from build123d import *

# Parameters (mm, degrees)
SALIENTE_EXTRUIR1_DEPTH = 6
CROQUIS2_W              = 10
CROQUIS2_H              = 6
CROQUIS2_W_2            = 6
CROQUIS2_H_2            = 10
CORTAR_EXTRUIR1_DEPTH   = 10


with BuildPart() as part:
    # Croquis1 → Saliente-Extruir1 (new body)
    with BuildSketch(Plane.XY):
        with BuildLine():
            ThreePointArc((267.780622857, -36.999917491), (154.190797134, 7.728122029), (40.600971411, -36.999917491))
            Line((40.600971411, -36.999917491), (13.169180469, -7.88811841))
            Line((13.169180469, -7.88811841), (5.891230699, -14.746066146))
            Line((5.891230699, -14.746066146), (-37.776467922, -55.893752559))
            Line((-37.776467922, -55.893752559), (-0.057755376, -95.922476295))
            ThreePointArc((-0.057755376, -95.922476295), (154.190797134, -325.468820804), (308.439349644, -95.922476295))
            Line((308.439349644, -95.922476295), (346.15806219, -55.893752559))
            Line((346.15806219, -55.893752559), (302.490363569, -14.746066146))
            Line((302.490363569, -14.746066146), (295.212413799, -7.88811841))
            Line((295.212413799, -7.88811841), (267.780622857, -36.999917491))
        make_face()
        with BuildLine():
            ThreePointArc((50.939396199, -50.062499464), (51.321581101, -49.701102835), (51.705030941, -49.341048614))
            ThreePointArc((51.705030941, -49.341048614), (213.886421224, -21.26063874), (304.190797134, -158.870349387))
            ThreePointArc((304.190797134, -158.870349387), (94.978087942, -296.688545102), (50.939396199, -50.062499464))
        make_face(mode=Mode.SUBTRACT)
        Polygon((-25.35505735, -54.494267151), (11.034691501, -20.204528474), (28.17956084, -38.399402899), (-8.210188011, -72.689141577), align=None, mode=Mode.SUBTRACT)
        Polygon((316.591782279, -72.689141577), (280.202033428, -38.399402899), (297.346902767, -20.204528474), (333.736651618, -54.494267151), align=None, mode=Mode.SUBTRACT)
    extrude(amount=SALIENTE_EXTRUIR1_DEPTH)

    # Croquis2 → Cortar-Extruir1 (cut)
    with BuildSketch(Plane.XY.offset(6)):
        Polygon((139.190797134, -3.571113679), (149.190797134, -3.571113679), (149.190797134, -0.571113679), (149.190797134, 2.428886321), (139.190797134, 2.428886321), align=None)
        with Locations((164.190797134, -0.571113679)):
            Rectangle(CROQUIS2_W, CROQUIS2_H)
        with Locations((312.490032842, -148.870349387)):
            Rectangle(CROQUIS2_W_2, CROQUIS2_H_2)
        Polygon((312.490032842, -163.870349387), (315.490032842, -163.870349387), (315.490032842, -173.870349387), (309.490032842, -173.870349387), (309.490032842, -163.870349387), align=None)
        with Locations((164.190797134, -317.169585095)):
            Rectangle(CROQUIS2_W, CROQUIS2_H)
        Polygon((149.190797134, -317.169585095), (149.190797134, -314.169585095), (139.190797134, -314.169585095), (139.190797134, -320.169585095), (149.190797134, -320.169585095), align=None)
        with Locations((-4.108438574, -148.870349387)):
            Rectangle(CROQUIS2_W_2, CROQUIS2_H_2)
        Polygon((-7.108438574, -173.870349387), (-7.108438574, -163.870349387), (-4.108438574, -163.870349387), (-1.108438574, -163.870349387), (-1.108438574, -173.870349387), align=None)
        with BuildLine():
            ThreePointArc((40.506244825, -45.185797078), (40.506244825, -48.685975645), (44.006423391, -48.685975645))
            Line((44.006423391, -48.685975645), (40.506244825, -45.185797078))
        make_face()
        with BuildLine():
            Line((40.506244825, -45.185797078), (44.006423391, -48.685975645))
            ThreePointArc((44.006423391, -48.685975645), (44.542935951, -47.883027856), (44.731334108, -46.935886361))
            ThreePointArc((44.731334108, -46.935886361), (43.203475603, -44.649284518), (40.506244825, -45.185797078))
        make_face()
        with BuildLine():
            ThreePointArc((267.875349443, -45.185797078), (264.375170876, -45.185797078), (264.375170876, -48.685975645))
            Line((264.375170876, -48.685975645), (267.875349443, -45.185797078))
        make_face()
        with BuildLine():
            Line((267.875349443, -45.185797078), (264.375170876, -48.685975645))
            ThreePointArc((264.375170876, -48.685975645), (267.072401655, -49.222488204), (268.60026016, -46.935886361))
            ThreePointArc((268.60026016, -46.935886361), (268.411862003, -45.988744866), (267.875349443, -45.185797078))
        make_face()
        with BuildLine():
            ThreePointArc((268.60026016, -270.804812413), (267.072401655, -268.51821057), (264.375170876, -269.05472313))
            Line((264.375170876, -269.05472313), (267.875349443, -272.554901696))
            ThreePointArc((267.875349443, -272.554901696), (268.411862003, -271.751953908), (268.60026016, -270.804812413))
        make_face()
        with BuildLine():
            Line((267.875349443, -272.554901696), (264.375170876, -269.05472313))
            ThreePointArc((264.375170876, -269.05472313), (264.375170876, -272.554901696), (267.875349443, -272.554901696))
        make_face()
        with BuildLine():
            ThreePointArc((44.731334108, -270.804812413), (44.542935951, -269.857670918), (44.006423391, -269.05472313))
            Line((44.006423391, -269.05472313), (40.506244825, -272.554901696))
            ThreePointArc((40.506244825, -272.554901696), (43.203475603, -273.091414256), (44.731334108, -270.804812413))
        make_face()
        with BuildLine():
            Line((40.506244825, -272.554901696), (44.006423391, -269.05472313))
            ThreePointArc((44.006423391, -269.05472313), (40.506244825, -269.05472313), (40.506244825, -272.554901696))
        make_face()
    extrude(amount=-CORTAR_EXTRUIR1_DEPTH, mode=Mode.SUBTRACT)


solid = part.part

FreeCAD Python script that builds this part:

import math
import FreeCAD as App
import Part
import Sketcher

V = App.Vector

doc = App.newDocument("Part")
body = doc.addObject("PartDesign::Body", "Body")

# Sketch on XY plane
sketch1 = doc.addObject("Sketcher::SketchObject", "Sketch")
body.addObject(sketch1)
sketch1.AttachmentSupport = (doc.XY_Plane, [""])
sketch1.MapMode = "FlatFace"
sketch1.addGeometry([
    Part.ArcOfCircle(Part.Circle(V(154.190797, -158.870349, 0), V(0, 0, 1), 166.598471), math.radians(47.014133), math.radians(132.985867)),  # 0
    Part.LineSegment(V(40.600971, -36.999917, 0), V(13.16918, -7.888118, 0)),  # 1
    Part.LineSegment(V(13.16918, -7.888118, 0), V(5.891231, -14.746066, 0)),  # 2
    Part.LineSegment(V(5.891231, -14.746066, 0), V(-37.776468, -55.893753, 0)),  # 3
    Part.LineSegment(V(-37.776468, -55.893753, 0), V(-0.057755, -95.922476, 0)),  # 4
    Part.ArcOfCircle(Part.Circle(V(154.190797, -158.870349, 0), V(0, 0, 1), 166.598471), math.radians(157.799935), math.radians(382.200065)),  # 5
    Part.LineSegment(V(308.43935, -95.922476, 0), V(346.158062, -55.893753, 0)),  # 6
    Part.LineSegment(V(346.158062, -55.893753, 0), V(302.490364, -14.746066, 0)),  # 7
    Part.LineSegment(V(302.490364, -14.746066, 0), V(295.212414, -7.888118, 0)),  # 8
    Part.LineSegment(V(295.212414, -7.888118, 0), V(267.780623, -36.999917, 0)),  # 9
    Part.LineSegment(V(-8.210188, -72.689142, 0), V(-25.355057, -54.494267, 0)),  # 10
    Part.LineSegment(V(-25.355057, -54.494267, 0), V(11.034692, -20.204528, 0)),  # 11
    Part.LineSegment(V(11.034692, -20.204528, 0), V(28.179561, -38.399403, 0)),  # 12
    Part.LineSegment(V(28.179561, -38.399403, 0), V(-8.210188, -72.689142, 0)),  # 13
    Part.ArcOfCircle(Part.Circle(V(154.190797, -158.870349, 0), V(0, 0, 1), 150), math.radians(133.49906), math.radians(360)),  # 14
    Part.ArcOfCircle(Part.Circle(V(154.190787, -158.870338, 0), V(0, 0, 1), 149.999985), math.radians(133.097228), math.radians(133.49906)),  # 15
    Part.ArcOfCircle(Part.Circle(V(154.190797, -158.870349, 0), V(0, 0, 1), 150), math.radians(0), math.radians(133.097228)),  # 16
    Part.LineSegment(V(333.736652, -54.494267, 0), V(316.591782, -72.689142, 0)),  # 17
    Part.LineSegment(V(316.591782, -72.689142, 0), V(280.202033, -38.399403, 0)),  # 18
    Part.LineSegment(V(280.202033, -38.399403, 0), V(297.346903, -20.204528, 0)),  # 19
    Part.LineSegment(V(297.346903, -20.204528, 0), V(333.736652, -54.494267, 0)),  # 20
], False)
sketch1.addConstraint([
    Sketcher.Constraint("Coincident", 0, 2, 1, 1),
    Sketcher.Constraint("Coincident", 1, 2, 2, 1),
    Sketcher.Constraint("Coincident", 2, 2, 3, 1),
    Sketcher.Constraint("Coincident", 3, 2, 4, 1),
    Sketcher.Constraint("Coincident", 4, 2, 5, 1),
    Sketcher.Constraint("Coincident", 5, 2, 6, 1),
    Sketcher.Constraint("Coincident", 6, 2, 7, 1),
    Sketcher.Constraint("Coincident", 7, 2, 8, 1),
    Sketcher.Constraint("Coincident", 8, 2, 9, 1),
    Sketcher.Constraint("Coincident", 9, 2, 0, 1),
    Sketcher.Constraint("Coincident", 10, 2, 11, 1),
    Sketcher.Constraint("Coincident", 11, 2, 12, 1),
    Sketcher.Constraint("Coincident", 12, 2, 13, 1),
    Sketcher.Constraint("Coincident", 13, 2, 10, 1),
    Sketcher.Constraint("Coincident", 14, 1, 15, 2),
    Sketcher.Constraint("Coincident", 15, 1, 16, 2),
    Sketcher.Constraint("Coincident", 16, 1, 14, 2),
    Sketcher.Constraint("Coincident", 17, 2, 18, 1),
    Sketcher.Constraint("Coincident", 18, 2, 19, 1),
    Sketcher.Constraint("Coincident", 19, 2, 20, 1),
    Sketcher.Constraint("Coincident", 20, 2, 17, 1),
    Sketcher.Constraint("Coincident", 5, 3, 0, 3),
    Sketcher.Constraint("Coincident", 14, 3, 0, 3),
    Sketcher.Constraint("Coincident", 16, 3, 0, 3),
    Sketcher.Constraint("Radius", 14, 150.0),
    Sketcher.Constraint("Distance", 1, 40.0),
    Sketcher.Constraint("Distance", 2, 10.0),
    Sketcher.Constraint("Distance", 3, 60.0),
    Sketcher.Constraint("Distance", 4, 55.0),
    Sketcher.Constraint("Distance", 6, 55.0),
    Sketcher.Constraint("Distance", 7, 60.0),
    Sketcher.Constraint("Distance", 8, 10.0),
    Sketcher.Constraint("Distance", 9, 40.0),
    Sketcher.Constraint("Distance", 10, 25.0),
    Sketcher.Constraint("Distance", 11, 50.0),
    Sketcher.Constraint("Distance", 12, 25.0),
    Sketcher.Constraint("Distance", 13, 50.0),
    Sketcher.Constraint("Distance", 17, 25.0),
    Sketcher.Constraint("Distance", 18, 50.0),
    Sketcher.Constraint("Distance", 19, 25.0),
    Sketcher.Constraint("Distance", 20, 50.0),
    Sketcher.Constraint("Radius", 0, 166.598471),
    Sketcher.Constraint("Radius", 5, 166.598471),
    Sketcher.Constraint("Radius", 15, 149.999985),
    Sketcher.Constraint("DistanceY", 14, 1, -1, 1, 50.062499),
    Sketcher.Constraint("DistanceY", 0, 2, 1, 2, 29.111799),
    Sketcher.Constraint("DistanceX", 3, 2, 2, 2, 43.667699),
    Sketcher.Constraint("DistanceX", 7, 2, 6, 2, 43.667699),
    Sketcher.Constraint("DistanceY", 9, 2, 8, 2, 29.111799),
    Sketcher.Constraint("DistanceX", 10, 2, 4, 2, 25.297302),
    Sketcher.Constraint("DistanceY", 10, 2, 2, 2, 39.748201),
    Sketcher.Constraint("DistanceX", 5, 2, 20, 2, 25.297302),
    Sketcher.Constraint("DistanceY", 20, 2, 7, 2, 39.748201),
    Sketcher.Constraint("DistanceY", 0, 3, -1, 1, 158.870349),
    Sketcher.Constraint("DistanceX", -1, 1, 0, 2, 40.600971),
    Sketcher.Constraint("DistanceY", 1, 2, -1, 1, 7.888118),
    Sketcher.Constraint("DistanceX", -1, 1, 2, 2, 5.891231),
    Sketcher.Constraint("DistanceX", -1, 1, 5, 2, 308.43935),
    Sketcher.Constraint("DistanceY", 8, 2, -1, 1, 7.888118),
    Sketcher.Constraint("DistanceX", -1, 1, 11, 2, 11.034692),
    Sketcher.Constraint("DistanceX", -1, 1, 12, 2, 28.179561),
    Sketcher.Constraint("DistanceX", -1, 1, 15, 1, 51.705031),
    Sketcher.Constraint("DistanceY", 16, 1, -1, 1, 158.870349),
    Sketcher.Constraint("DistanceY", 17, 2, -1, 1, 72.689142),
    Sketcher.Constraint("DistanceY", 19, 2, -1, 1, 20.204528),
])
pad1 = doc.addObject("PartDesign::Pad", "Pad")
body.addObject(pad1)
pad1.Profile = sketch1
pad1.Length = 6

# Sketch on XY plane
sketch2 = doc.addObject("Sketcher::SketchObject", "Sketch001")
body.addObject(sketch2)
sketch2.AttachmentSupport = (doc.XY_Plane, [""])
sketch2.MapMode = "FlatFace"
sketch2.AttachmentOffset = App.Placement(V(0, 0, 6), App.Rotation())
sketch2.addGeometry([
    Part.LineSegment(V(139.2, -3.6, 0), V(149.2, -3.6, 0)),  # 0
    Part.LineSegment(V(149.2, -3.6, 0), V(149.2, 2.4, 0)),  # 1
    Part.LineSegment(V(149.2, 2.4, 0), V(139.2, 2.4, 0)),  # 2
    Part.LineSegment(V(139.2, 2.4, 0), V(139.2, -3.6, 0)),  # 3
    Part.LineSegment(V(159.2, 2.4, 0), V(159.2, -3.6, 0)),  # 4
    Part.LineSegment(V(159.2, -3.6, 0), V(169.2, -3.6, 0)),  # 5
    Part.LineSegment(V(169.2, -3.6, 0), V(169.2, 2.4, 0)),  # 6
    Part.LineSegment(V(169.2, 2.4, 0), V(159.2, 2.4, 0)),  # 7
    Part.LineSegment(V(309.5, -143.9, 0), V(309.5, -153.9, 0)),  # 8
    Part.LineSegment(V(309.5, -153.9, 0), V(315.5, -153.9, 0)),  # 9
    Part.LineSegment(V(315.5, -153.9, 0), V(315.5, -143.9, 0)),  # 10
    Part.LineSegment(V(315.5, -143.9, 0), V(309.5, -143.9, 0)),  # 11
    Part.LineSegment(V(315.5, -163.9, 0), V(309.5, -163.9, 0)),  # 12
    Part.LineSegment(V(309.5, -163.9, 0), V(309.5, -173.9, 0)),  # 13
    Part.LineSegment(V(309.5, -173.9, 0), V(315.5, -173.9, 0)),  # 14
    Part.LineSegment(V(315.5, -173.9, 0), V(315.5, -163.9, 0)),  # 15
    Part.LineSegment(V(159.2, -314.2, 0), V(159.2, -320.2, 0)),  # 16
    Part.LineSegment(V(159.2, -320.2, 0), V(169.2, -320.2, 0)),  # 17
    Part.LineSegment(V(169.2, -320.2, 0), V(169.2, -314.2, 0)),  # 18
    Part.LineSegment(V(169.2, -314.2, 0), V(159.2, -314.2, 0)),  # 19
    Part.LineSegment(V(149.2, -314.2, 0), V(139.2, -314.2, 0)),  # 20
    Part.LineSegment(V(139.2, -314.2, 0), V(139.2, -320.2, 0)),  # 21
    Part.LineSegment(V(139.2, -320.2, 0), V(149.2, -320.2, 0)),  # 22
    Part.LineSegment(V(149.2, -320.2, 0), V(149.2, -314.2, 0)),  # 23
    Part.LineSegment(V(-7.1, -143.9, 0), V(-7.1, -153.9, 0)),  # 24
    Part.LineSegment(V(-7.1, -153.9, 0), V(-1.1, -153.9, 0)),  # 25
    Part.LineSegment(V(-1.1, -153.9, 0), V(-1.1, -143.9, 0)),  # 26
    Part.LineSegment(V(-1.1, -143.9, 0), V(-7.1, -143.9, 0)),  # 27
    Part.LineSegment(V(-7.1, -163.9, 0), V(-7.1, -173.9, 0)),  # 28
    Part.LineSegment(V(-7.1, -173.9, 0), V(-1.1, -173.9, 0)),  # 29
    Part.LineSegment(V(-1.1, -173.9, 0), V(-1.1, -163.9, 0)),  # 30
    Part.LineSegment(V(-1.1, -163.9, 0), V(-7.1, -163.9, 0)),  # 31
    Part.ArcOfCircle(Part.Circle(V(42.3, -46.9, 0), V(0, 0, 1), 2.5), math.radians(135), math.radians(315)),  # 32
    Part.ArcOfCircle(Part.Circle(V(42.3, -46.9, 0), V(0, 0, 1), 2.5), math.radians(-45), math.radians(0)),  # 33
    Part.ArcOfCircle(Part.Circle(V(42.3, -46.9, 0), V(0, 0, 1), 2.5), math.radians(0), math.radians(135)),  # 34
    Part.ArcOfCircle(Part.Circle(V(266.1, -46.9, 0), V(0, 0, 1), 2.5), math.radians(45), math.radians(225)),  # 35
    Part.ArcOfCircle(Part.Circle(V(266.1, -46.9, 0), V(0, 0, 1), 2.5), math.radians(-135), math.radians(0)),  # 36
    Part.ArcOfCircle(Part.Circle(V(266.1, -46.9, 0), V(0, 0, 1), 2.5), math.radians(0), math.radians(45)),  # 37
    Part.ArcOfCircle(Part.Circle(V(266.1, -270.8, 0), V(0, 0, 1), 2.5), math.radians(0), math.radians(135)),  # 38
    Part.ArcOfCircle(Part.Circle(V(266.1, -270.8, 0), V(0, 0, 1), 2.5), math.radians(135), math.radians(315)),  # 39
    Part.ArcOfCircle(Part.Circle(V(266.1, -270.8, 0), V(0, 0, 1), 2.5), math.radians(-45), math.radians(0)),  # 40
    Part.ArcOfCircle(Part.Circle(V(42.3, -270.8, 0), V(0, 0, 1), 2.5), math.radians(0), math.radians(45)),  # 41
    Part.ArcOfCircle(Part.Circle(V(42.3, -270.8, 0), V(0, 0, 1), 2.5), math.radians(45), math.radians(225)),  # 42
    Part.ArcOfCircle(Part.Circle(V(42.3, -270.8, 0), V(0, 0, 1), 2.5), math.radians(-135), math.radians(0)),  # 43
], False)
sketch2.addConstraint([
    Sketcher.Constraint("Coincident", 0, 2, 1, 1),
    Sketcher.Constraint("Coincident", 1, 2, 2, 1),
    Sketcher.Constraint("Coincident", 2, 2, 3, 1),
    Sketcher.Constraint("Coincident", 3, 2, 0, 1),
    Sketcher.Constraint("Coincident", 4, 2, 5, 1),
    Sketcher.Constraint("Coincident", 5, 2, 6, 1),
    Sketcher.Constraint("Coincident", 6, 2, 7, 1),
    Sketcher.Constraint("Coincident", 7, 2, 4, 1),
    Sketcher.Constraint("Coincident", 8, 2, 9, 1),
    Sketcher.Constraint("Coincident", 9, 2, 10, 1),
    Sketcher.Constraint("Coincident", 10, 2, 11, 1),
    Sketcher.Constraint("Coincident", 11, 2, 8, 1),
    Sketcher.Constraint("Coincident", 12, 2, 13, 1),
    Sketcher.Constraint("Coincident", 13, 2, 14, 1),
    Sketcher.Constraint("Coincident", 14, 2, 15, 1),
    Sketcher.Constraint("Coincident", 15, 2, 12, 1),
    Sketcher.Constraint("Coincident", 16, 2, 17, 1),
    Sketcher.Constraint("Coincident", 17, 2, 18, 1),
    Sketcher.Constraint("Coincident", 18, 2, 19, 1),
    Sketcher.Constraint("Coincident", 19, 2, 16, 1),
    Sketcher.Constraint("Coincident", 20, 2, 21, 1),
    Sketcher.Constraint("Coincident", 21, 2, 22, 1),
    Sketcher.Constraint("Coincident", 22, 2, 23, 1),
    Sketcher.Constraint("Coincident", 23, 2, 20, 1),
    Sketcher.Constraint("Coincident", 24, 2, 25, 1),
    Sketcher.Constraint("Coincident", 25, 2, 26, 1),
    Sketcher.Constraint("Coincident", 26, 2, 27, 1),
    Sketcher.Constraint("Coincident", 27, 2, 24, 1),
    Sketcher.Constraint("Coincident", 28, 2, 29, 1),
    Sketcher.Constraint("Coincident", 29, 2, 30, 1),
    Sketcher.Constraint("Coincident", 30, 2, 31, 1),
    Sketcher.Constraint("Coincident", 31, 2, 28, 1),
    Sketcher.Constraint("Tangent", 32, 2, 33, 1),
    Sketcher.Constraint("Tangent", 33, 2, 34, 1),
    Sketcher.Constraint("Tangent", 34, 2, 32, 1),
    Sketcher.Constraint("Tangent", 35, 2, 36, 1),
    Sketcher.Constraint("Tangent", 36, 2, 37, 1),
    Sketcher.Constraint("Tangent", 37, 2, 35, 1),
    Sketcher.Constraint("Tangent", 38, 2, 39, 1),
    Sketcher.Constraint("Tangent", 39, 2, 40, 1),
    Sketcher.Constraint("Tangent", 40, 2, 38, 1),
    Sketcher.Constraint("Tangent", 41, 2, 42, 1),
    Sketcher.Constraint("Tangent", 42, 2, 43, 1),
    Sketcher.Constraint("Tangent", 43, 2, 41, 1),
    Sketcher.Constraint("Horizontal", 0),
    Sketcher.Constraint("Vertical", 1),
    Sketcher.Constraint("Horizontal", 2),
    Sketcher.Constraint("Vertical", 3),
    Sketcher.Constraint("Vertical", 4),
    Sketcher.Constraint("Horizontal", 5),
    Sketcher.Constraint("Vertical", 6),
    Sketcher.Constraint("Horizontal", 7),
    Sketcher.Constraint("Vertical", 8),
    Sketcher.Constraint("Horizontal", 9),
    Sketcher.Constraint("Vertical", 10),
    Sketcher.Constraint("Horizontal", 11),
    Sketcher.Constraint("Horizontal", 12),
    Sketcher.Constraint("Vertical", 13),
    Sketcher.Constraint("Horizontal", 14),
    Sketcher.Constraint("Vertical", 15),
    Sketcher.Constraint("Vertical", 16),
    Sketcher.Constraint("Horizontal", 17),
    Sketcher.Constraint("Vertical", 18),
    Sketcher.Constraint("Horizontal", 19),
    Sketcher.Constraint("Horizontal", 20),
    Sketcher.Constraint("Vertical", 21),
    Sketcher.Constraint("Horizontal", 22),
    Sketcher.Constraint("Vertical", 23),
    Sketcher.Constraint("Vertical", 24),
    Sketcher.Constraint("Horizontal", 25),
    Sketcher.Constraint("Vertical", 26),
    Sketcher.Constraint("Horizontal", 27),
    Sketcher.Constraint("Vertical", 28),
    Sketcher.Constraint("Horizontal", 29),
    Sketcher.Constraint("Vertical", 30),
    Sketcher.Constraint("Horizontal", 31),
    Sketcher.Constraint("Equal", 34, 35),
    Sketcher.Constraint("Equal", 37, 38),
    Sketcher.Constraint("Equal", 40, 41),
    Sketcher.Constraint("Horizontal", 34, 3, 35, 3),
    Sketcher.Constraint("Horizontal", 40, 3, 41, 3),
    Sketcher.Constraint("Horizontal", 3, 2, 4, 2),
    Sketcher.Constraint("Horizontal", 2, 2, 6, 2),
    Sketcher.Constraint("Horizontal", 19, 2, 20, 2),
    Sketcher.Constraint("Horizontal", 17, 2, 21, 2),
    Sketcher.Constraint("Horizontal", 9, 2, 24, 2),
    Sketcher.Constraint("Horizontal", 11, 2, 26, 2),
    Sketcher.Constraint("Horizontal", 14, 2, 28, 2),
    Sketcher.Constraint("Horizontal", 15, 2, 30, 2),
    Sketcher.Constraint("Horizontal", 37, 3, 33, 2),
    Sketcher.Constraint("Horizontal", 32, 2, 35, 2),
    Sketcher.Constraint("Horizontal", 33, 2, 36, 2),
    Sketcher.Constraint("Horizontal", 34, 2, 37, 2),
    Sketcher.Constraint("Horizontal", 43, 3, 40, 2),
    Sketcher.Constraint("Horizontal", 38, 2, 41, 2),
    Sketcher.Constraint("Horizontal", 39, 2, 42, 2),
    Sketcher.Constraint("Horizontal", 40, 2, 43, 2),
    Sketcher.Constraint("Vertical", 37, 3, 38, 3),
    Sketcher.Constraint("Vertical", 34, 3, 41, 3),
    Sketcher.Constraint("Vertical", 11, 2, 12, 2),
    Sketcher.Constraint("Vertical", 10, 2, 14, 2),
    Sketcher.Constraint("Vertical", 7, 2, 16, 2),
    Sketcher.Constraint("Vertical", 6, 2, 17, 2),
    Sketcher.Constraint("Vertical", 3, 2, 20, 2),
    Sketcher.Constraint("Vertical", 1, 2, 22, 2),
    Sketcher.Constraint("Vertical", 27, 2, 28, 2),
    Sketcher.Constraint("Vertical", 26, 2, 29, 2),
    Sketcher.Constraint("Vertical", 35, 2, 38, 2),
    Sketcher.Constraint("Vertical", 37, 2, 39, 2),
    Sketcher.Constraint("Equal", 2, 5),
    Sketcher.Constraint("Equal", 14, 25),
    Sketcher.Constraint("Equal", 31, 1),
    Sketcher.Constraint("Equal", 22, 8),
    Sketcher.Constraint("Equal", 10, 13),
    Sketcher.Constraint("Equal", 6, 16),
    Sketcher.Constraint("DistanceX", 0, 1, 0, 2, 10.0),
    Sketcher.Constraint("DistanceX", 9, 1, 9, 2, 6.0),
    Sketcher.Constraint("Radius", 32, 2.475),
    Sketcher.Constraint("DistanceX", 0, 2, 4, 2, 10.0),
    Sketcher.Constraint("DistanceY", 12, 2, 8, 2, 10.0),
    Sketcher.Constraint("DistanceY", 39, 2, -1, 1, 272.554902),
    Sketcher.Constraint("DistanceX", -1, 1, 35, 3, 266.12526),
    Sketcher.Constraint("DistanceY", 8, 2, -1, 1, 153.870349),
    Sketcher.Constraint("DistanceX", 24, 2, -1, 1, 7.108439),
    Sketcher.Constraint("DistanceX", -1, 1, 35, 2, 264.375171),
    Sketcher.Constraint("DistanceX", -1, 1, 37, 2, 267.875349),
    Sketcher.Constraint("DistanceX", 26, 2, 32, 2, 45.114862),
    Sketcher.Constraint("DistanceY", 32, 2, 3, 2, 45.114862),
    Sketcher.Constraint("DistanceX", 35, 2, 11, 2, 45.114862),
    Sketcher.Constraint("DistanceY", 18, 2, 38, 2, 45.114862),
    Sketcher.Constraint("DistanceY", 32, 3, -1, 1, 46.935886),
    Sketcher.Constraint("DistanceX", -1, 1, 0, 2, 149.190797),
])
pocket1 = doc.addObject("PartDesign::Pocket", "Pocket")
body.addObject(pocket1)
pocket1.Profile = sketch2
pocket1.Length = 10

doc.recompute()
